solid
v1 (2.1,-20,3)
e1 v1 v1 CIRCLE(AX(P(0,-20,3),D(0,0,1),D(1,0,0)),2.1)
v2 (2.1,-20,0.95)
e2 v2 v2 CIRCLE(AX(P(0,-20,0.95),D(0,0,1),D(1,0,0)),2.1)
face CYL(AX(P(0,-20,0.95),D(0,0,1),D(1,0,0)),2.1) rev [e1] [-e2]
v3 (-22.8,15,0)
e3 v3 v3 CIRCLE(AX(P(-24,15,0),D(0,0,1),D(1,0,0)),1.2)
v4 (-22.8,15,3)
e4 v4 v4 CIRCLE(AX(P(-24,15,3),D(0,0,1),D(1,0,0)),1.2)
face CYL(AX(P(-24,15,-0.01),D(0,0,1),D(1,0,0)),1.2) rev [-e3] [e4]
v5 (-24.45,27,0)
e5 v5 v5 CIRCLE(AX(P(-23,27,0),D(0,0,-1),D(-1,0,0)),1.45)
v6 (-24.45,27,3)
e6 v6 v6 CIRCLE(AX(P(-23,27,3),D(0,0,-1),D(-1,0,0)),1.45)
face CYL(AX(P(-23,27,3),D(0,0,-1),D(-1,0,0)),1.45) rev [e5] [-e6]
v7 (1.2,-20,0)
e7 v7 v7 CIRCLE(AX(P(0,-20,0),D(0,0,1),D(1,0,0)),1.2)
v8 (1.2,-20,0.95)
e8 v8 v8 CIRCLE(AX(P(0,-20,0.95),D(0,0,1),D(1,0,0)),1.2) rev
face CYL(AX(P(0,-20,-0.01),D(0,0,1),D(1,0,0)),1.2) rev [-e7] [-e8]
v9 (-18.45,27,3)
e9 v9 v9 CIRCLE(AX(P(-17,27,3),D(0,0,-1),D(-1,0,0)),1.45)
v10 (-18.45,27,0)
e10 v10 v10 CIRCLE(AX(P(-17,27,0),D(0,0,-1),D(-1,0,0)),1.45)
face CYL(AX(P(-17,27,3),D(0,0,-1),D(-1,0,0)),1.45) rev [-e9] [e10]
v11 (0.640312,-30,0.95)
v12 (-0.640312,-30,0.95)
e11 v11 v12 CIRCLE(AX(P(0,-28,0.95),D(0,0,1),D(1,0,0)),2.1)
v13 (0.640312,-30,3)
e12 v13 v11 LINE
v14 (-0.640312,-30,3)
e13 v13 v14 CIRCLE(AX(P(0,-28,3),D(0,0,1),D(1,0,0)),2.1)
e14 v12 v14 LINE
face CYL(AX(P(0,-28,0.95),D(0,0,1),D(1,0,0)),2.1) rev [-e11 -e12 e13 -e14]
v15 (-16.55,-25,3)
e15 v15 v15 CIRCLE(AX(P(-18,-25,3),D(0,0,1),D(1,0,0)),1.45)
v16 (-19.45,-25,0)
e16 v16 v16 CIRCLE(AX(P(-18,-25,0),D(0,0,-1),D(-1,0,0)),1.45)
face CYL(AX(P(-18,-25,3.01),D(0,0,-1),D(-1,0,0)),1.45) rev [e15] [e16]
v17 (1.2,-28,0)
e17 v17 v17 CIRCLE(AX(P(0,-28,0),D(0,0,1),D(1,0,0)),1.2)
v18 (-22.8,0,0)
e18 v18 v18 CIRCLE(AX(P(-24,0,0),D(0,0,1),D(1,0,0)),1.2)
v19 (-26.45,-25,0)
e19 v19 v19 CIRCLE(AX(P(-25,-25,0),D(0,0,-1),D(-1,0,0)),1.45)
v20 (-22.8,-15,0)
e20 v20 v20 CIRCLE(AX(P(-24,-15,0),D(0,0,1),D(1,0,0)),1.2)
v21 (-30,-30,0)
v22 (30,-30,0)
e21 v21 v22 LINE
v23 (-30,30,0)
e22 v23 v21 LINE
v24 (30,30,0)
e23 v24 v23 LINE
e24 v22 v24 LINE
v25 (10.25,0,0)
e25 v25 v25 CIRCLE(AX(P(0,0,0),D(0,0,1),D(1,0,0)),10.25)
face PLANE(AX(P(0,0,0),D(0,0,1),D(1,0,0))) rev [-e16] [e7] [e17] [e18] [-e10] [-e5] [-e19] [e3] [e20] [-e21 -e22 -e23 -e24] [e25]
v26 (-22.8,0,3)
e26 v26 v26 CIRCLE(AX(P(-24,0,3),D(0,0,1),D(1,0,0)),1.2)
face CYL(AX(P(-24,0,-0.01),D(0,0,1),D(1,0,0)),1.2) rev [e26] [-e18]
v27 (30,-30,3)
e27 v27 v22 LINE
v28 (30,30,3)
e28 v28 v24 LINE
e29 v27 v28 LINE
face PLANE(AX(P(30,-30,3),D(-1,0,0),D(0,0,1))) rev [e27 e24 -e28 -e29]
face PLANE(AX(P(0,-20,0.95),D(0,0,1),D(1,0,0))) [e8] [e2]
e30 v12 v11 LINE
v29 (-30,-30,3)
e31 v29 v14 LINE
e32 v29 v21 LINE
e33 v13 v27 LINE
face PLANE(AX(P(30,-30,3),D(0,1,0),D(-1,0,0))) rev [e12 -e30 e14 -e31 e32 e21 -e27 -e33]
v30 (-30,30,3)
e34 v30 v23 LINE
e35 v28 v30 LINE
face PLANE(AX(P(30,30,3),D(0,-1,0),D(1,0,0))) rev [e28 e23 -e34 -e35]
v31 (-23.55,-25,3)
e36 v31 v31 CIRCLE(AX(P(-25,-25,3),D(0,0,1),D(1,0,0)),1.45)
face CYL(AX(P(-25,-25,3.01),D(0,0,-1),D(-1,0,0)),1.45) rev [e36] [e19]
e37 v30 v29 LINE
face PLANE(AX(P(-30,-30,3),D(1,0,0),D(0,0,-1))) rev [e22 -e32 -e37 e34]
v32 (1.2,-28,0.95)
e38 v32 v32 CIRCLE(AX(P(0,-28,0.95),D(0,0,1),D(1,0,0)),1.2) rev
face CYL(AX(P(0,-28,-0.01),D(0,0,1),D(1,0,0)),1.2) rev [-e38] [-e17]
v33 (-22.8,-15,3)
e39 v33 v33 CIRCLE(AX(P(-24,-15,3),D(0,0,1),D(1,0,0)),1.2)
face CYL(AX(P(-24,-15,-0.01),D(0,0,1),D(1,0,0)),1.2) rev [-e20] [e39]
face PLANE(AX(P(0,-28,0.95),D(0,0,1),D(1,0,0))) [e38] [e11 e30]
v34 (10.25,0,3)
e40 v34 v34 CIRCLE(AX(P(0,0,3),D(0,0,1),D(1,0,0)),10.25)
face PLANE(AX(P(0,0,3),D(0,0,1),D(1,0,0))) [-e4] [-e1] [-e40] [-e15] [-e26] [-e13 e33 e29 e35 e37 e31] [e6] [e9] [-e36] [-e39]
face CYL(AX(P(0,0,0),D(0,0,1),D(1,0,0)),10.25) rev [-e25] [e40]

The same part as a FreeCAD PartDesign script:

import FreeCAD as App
import Part
import Sketcher
Q = App.Units.Quantity


def add_polygon(sketch, points):
    """Adds a closed chain of lines whose ends are joined by coincident constraints."""
    first, n = sketch.GeometryCount, len(points)
    for a, b in zip(points, points[1:] + points[:1]):
        sketch.addGeometry(Part.LineSegment(App.Vector(*a, 0), App.Vector(*b, 0)), False)
    for i in range(n):
        sketch.addConstraint(Sketcher.Constraint("Coincident", first + i, 2, first + (i + 1) % n, 1))

doc = App.newDocument("Part")
body = doc.addObject("PartDesign::Body", "Body")

sketch1 = body.newObject("Sketcher::SketchObject", "Sketch")
sketch1.AttachmentSupport = (doc.getObject("XY_Plane"), [""])
sketch1.MapMode = "FlatFace"
add_polygon(sketch1, [(-30, 30), (-30, -30), (30, -30), (30, 30)])
sketch1.addConstraint([
    Sketcher.Constraint("Vertical", 0),
    Sketcher.Constraint("Horizontal", 1),
    Sketcher.Constraint("Vertical", 2),
    Sketcher.Constraint("Horizontal", 3),
    Sketcher.Constraint("Symmetric", 0, 2, 2, 2, -1, 1),
    Sketcher.Constraint("Equal", 3, 0),
    Sketcher.Constraint("DistanceX", 1, 1, 1, 2, Q("60 mm")),
])
pad1 = body.newObject("PartDesign::Pad", "Pad")
pad1.Profile = sketch1
pad1.Length = 3

sketch2 = body.newObject("Sketcher::SketchObject", "Sketch001")
sketch2.AttachmentSupport = (doc.getObject("XY_Plane"), [""])
sketch2.MapMode = "FlatFace"
sketch2.AttachmentOffset = App.Placement(App.Vector(0, 0, 3), App.Rotation())
sketch2.addGeometry(Part.Circle(App.Vector(0, 0, 0), App.Vector(0, 0, 1), 10), False)
sketch2.addConstraint([
    Sketcher.Constraint("Coincident", 0, 3, -1, 1),
    Sketcher.Constraint("Diameter", 0, Q("20.5 mm")),
])
pocket1 = body.newObject("PartDesign::Pocket", "Pocket")
pocket1.Profile = sketch2
pocket1.Type = "ThroughAll"

sketch3 = body.newObject("Sketcher::SketchObject", "Sketch002")
sketch3.AttachmentSupport = (doc.getObject("XY_Plane"), [""])
sketch3.MapMode = "FlatFace"
sketch3.addGeometry([
    Part.Circle(App.Vector(-18, -25, 0), App.Vector(0, 0, 1), 1.4),
    Part.Circle(App.Vector(-25, -25, 0), App.Vector(0, 0, 1), 1.4),
], False)
sketch3.addConstraint([
    Sketcher.Constraint("Equal", 0, 1),
    Sketcher.Constraint("Horizontal", 0, 3, 1, 3),
    Sketcher.Constraint("Diameter", 0, Q("2.9 mm")),
    Sketcher.Constraint("DistanceX", 0, 3, -1, 1, Q("18 mm")),
    Sketcher.Constraint("DistanceY", 0, 3, -1, 1, Q("25 mm")),
    Sketcher.Constraint("DistanceX", 1, 3, -1, 1, Q("25 mm")),
])
pocket2 = body.newObject("PartDesign::Pocket", "Pocket001")
pocket2.Profile = sketch3
pocket2.Length = 3.01
pocket2.Reversed = True

sketch4 = body.newObject("Sketcher::SketchObject", "Sketch003")
sketch4.AttachmentSupport = (doc.getObject("XY_Plane"), [""])
sketch4.MapMode = "FlatFace"
sketch4.addGeometry([
    Part.Circle(App.Vector(-17, 27, 0), App.Vector(0, 0, 1), 1.4),
    Part.Circle(App.Vector(-23, 27, 0), App.Vector(0, 0, 1), 1.4),
], False)
sketch4.addConstraint([
    Sketcher.Constraint("Equal", 0, 1),
    Sketcher.Constraint("Horizontal", 0, 3, 1, 3),
    Sketcher.Constraint("Diameter", 0, Q("2.9 mm")),
    Sketcher.Constraint("DistanceX", 0, 3, -1, 1, Q("17 mm")),
    Sketcher.Constraint("DistanceY", -1, 1, 0, 3, Q("27 mm")),
    Sketcher.Constraint("DistanceX", 1, 3, -1, 1, Q("23 mm")),
])
pocket3 = body.newObject("PartDesign::Pocket", "Pocket002")
pocket3.Profile = sketch4
pocket3.Type = "ThroughAll"
pocket3.Reversed = True

sketch5 = body.newObject("Sketcher::SketchObject", "Sketch004")
sketch5.AttachmentSupport = (doc.getObject("XY_Plane"), [""])
sketch5.MapMode = "FlatFace"
sketch5.AttachmentOffset = App.Placement(App.Vector(0, 0, 3), App.Rotation())
sketch5.addGeometry([
    Part.Circle(App.Vector(-24, -15, 0), App.Vector(0, 0, 1), 1.2),
    Part.Circle(App.Vector(-24, 0, 0), App.Vector(0, 0, 1), 1.2),
    Part.Circle(App.Vector(-24, 15, 0), App.Vector(0, 0, 1), 1.2),
], False)
sketch5.addConstraint([
    Sketcher.Constraint("Equal", 0, 1),
    Sketcher.Constraint("Equal", 1, 2),
    Sketcher.Constraint("Symmetric", 0, 3, 2, 3, -1),
    Sketcher.Constraint("PointOnObject", 1, 3, -1),
    Sketcher.Constraint("Vertical", 0, 3, 1, 3),
    Sketcher.Constraint("Diameter", 0, Q("2.4 mm")),
    Sketcher.Constraint("DistanceX", 0, 3, -1, 1, Q("24 mm")),
    Sketcher.Constraint("DistanceY", 0, 3, -1, 1, Q("15 mm")),
])
pocket4 = body.newObject("PartDesign::Pocket", "Pocket003")
pocket4.Profile = sketch5
pocket4.Length = 3.01

sketch6 = body.newObject("Sketcher::SketchObject", "Sketch005")
sketch6.AttachmentSupport = (doc.getObject("XY_Plane"), [""])
sketch6.MapMode = "FlatFace"
sketch6.AttachmentOffset = App.Placement(App.Vector(0, 0, 3), App.Rotation())
sketch6.addGeometry([
    Part.Circle(App.Vector(0, -28, 0), App.Vector(0, 0, 1), 1.2),
    Part.Circle(App.Vector(0, -20, 0), App.Vector(0, 0, 1), 1.2),
], False)
sketch6.addConstraint([
    Sketcher.Constraint("Equal", 0, 1),
    Sketcher.Constraint("PointOnObject", 0, 3, -2),
    Sketcher.Constraint("PointOnObject", 1, 3, -2),
    Sketcher.Constraint("Diameter", 0, Q("2.4 mm")),
    Sketcher.Constraint("DistanceY", 0, 3, -1, 1, Q("28 mm")),
    Sketcher.Constraint("DistanceY", 1, 3, -1, 1, Q("20 mm")),
])
pocket5 = body.newObject("PartDesign::Pocket", "Pocket004")
pocket5.Profile = sketch6
pocket5.Length = 3.01

sketch7 = body.newObject("Sketcher::SketchObject", "Sketch006")
sketch7.AttachmentSupport = (doc.getObject("XY_Plane"), [""])
sketch7.MapMode = "FlatFace"
sketch7.AttachmentOffset = App.Placement(App.Vector(0, 0, 3), App.Rotation())
sketch7.addGeometry([
    Part.Circle(App.Vector(0, -28, 0), App.Vector(0, 0, 1), 2.1),
    Part.Circle(App.Vector(0, -20, 0), App.Vector(0, 0, 1), 2.1),
], False)
sketch7.addConstraint([
    Sketcher.Constraint("Equal", 0, 1),
    Sketcher.Constraint("PointOnObject", 0, 3, -2),
    Sketcher.Constraint("PointOnObject", 1, 3, -2),
    Sketcher.Constraint("Diameter", 0, Q("4.2 mm")),
    Sketcher.Constraint("DistanceY", 0, 3, -1, 1, Q("28 mm")),
    Sketcher.Constraint("DistanceY", 1, 3, -1, 1, Q("20 mm")),
])
pocket6 = body.newObject("PartDesign::Pocket", "Pocket005")
pocket6.Profile = sketch7
pocket6.Length = 2.05

doc.recompute()
